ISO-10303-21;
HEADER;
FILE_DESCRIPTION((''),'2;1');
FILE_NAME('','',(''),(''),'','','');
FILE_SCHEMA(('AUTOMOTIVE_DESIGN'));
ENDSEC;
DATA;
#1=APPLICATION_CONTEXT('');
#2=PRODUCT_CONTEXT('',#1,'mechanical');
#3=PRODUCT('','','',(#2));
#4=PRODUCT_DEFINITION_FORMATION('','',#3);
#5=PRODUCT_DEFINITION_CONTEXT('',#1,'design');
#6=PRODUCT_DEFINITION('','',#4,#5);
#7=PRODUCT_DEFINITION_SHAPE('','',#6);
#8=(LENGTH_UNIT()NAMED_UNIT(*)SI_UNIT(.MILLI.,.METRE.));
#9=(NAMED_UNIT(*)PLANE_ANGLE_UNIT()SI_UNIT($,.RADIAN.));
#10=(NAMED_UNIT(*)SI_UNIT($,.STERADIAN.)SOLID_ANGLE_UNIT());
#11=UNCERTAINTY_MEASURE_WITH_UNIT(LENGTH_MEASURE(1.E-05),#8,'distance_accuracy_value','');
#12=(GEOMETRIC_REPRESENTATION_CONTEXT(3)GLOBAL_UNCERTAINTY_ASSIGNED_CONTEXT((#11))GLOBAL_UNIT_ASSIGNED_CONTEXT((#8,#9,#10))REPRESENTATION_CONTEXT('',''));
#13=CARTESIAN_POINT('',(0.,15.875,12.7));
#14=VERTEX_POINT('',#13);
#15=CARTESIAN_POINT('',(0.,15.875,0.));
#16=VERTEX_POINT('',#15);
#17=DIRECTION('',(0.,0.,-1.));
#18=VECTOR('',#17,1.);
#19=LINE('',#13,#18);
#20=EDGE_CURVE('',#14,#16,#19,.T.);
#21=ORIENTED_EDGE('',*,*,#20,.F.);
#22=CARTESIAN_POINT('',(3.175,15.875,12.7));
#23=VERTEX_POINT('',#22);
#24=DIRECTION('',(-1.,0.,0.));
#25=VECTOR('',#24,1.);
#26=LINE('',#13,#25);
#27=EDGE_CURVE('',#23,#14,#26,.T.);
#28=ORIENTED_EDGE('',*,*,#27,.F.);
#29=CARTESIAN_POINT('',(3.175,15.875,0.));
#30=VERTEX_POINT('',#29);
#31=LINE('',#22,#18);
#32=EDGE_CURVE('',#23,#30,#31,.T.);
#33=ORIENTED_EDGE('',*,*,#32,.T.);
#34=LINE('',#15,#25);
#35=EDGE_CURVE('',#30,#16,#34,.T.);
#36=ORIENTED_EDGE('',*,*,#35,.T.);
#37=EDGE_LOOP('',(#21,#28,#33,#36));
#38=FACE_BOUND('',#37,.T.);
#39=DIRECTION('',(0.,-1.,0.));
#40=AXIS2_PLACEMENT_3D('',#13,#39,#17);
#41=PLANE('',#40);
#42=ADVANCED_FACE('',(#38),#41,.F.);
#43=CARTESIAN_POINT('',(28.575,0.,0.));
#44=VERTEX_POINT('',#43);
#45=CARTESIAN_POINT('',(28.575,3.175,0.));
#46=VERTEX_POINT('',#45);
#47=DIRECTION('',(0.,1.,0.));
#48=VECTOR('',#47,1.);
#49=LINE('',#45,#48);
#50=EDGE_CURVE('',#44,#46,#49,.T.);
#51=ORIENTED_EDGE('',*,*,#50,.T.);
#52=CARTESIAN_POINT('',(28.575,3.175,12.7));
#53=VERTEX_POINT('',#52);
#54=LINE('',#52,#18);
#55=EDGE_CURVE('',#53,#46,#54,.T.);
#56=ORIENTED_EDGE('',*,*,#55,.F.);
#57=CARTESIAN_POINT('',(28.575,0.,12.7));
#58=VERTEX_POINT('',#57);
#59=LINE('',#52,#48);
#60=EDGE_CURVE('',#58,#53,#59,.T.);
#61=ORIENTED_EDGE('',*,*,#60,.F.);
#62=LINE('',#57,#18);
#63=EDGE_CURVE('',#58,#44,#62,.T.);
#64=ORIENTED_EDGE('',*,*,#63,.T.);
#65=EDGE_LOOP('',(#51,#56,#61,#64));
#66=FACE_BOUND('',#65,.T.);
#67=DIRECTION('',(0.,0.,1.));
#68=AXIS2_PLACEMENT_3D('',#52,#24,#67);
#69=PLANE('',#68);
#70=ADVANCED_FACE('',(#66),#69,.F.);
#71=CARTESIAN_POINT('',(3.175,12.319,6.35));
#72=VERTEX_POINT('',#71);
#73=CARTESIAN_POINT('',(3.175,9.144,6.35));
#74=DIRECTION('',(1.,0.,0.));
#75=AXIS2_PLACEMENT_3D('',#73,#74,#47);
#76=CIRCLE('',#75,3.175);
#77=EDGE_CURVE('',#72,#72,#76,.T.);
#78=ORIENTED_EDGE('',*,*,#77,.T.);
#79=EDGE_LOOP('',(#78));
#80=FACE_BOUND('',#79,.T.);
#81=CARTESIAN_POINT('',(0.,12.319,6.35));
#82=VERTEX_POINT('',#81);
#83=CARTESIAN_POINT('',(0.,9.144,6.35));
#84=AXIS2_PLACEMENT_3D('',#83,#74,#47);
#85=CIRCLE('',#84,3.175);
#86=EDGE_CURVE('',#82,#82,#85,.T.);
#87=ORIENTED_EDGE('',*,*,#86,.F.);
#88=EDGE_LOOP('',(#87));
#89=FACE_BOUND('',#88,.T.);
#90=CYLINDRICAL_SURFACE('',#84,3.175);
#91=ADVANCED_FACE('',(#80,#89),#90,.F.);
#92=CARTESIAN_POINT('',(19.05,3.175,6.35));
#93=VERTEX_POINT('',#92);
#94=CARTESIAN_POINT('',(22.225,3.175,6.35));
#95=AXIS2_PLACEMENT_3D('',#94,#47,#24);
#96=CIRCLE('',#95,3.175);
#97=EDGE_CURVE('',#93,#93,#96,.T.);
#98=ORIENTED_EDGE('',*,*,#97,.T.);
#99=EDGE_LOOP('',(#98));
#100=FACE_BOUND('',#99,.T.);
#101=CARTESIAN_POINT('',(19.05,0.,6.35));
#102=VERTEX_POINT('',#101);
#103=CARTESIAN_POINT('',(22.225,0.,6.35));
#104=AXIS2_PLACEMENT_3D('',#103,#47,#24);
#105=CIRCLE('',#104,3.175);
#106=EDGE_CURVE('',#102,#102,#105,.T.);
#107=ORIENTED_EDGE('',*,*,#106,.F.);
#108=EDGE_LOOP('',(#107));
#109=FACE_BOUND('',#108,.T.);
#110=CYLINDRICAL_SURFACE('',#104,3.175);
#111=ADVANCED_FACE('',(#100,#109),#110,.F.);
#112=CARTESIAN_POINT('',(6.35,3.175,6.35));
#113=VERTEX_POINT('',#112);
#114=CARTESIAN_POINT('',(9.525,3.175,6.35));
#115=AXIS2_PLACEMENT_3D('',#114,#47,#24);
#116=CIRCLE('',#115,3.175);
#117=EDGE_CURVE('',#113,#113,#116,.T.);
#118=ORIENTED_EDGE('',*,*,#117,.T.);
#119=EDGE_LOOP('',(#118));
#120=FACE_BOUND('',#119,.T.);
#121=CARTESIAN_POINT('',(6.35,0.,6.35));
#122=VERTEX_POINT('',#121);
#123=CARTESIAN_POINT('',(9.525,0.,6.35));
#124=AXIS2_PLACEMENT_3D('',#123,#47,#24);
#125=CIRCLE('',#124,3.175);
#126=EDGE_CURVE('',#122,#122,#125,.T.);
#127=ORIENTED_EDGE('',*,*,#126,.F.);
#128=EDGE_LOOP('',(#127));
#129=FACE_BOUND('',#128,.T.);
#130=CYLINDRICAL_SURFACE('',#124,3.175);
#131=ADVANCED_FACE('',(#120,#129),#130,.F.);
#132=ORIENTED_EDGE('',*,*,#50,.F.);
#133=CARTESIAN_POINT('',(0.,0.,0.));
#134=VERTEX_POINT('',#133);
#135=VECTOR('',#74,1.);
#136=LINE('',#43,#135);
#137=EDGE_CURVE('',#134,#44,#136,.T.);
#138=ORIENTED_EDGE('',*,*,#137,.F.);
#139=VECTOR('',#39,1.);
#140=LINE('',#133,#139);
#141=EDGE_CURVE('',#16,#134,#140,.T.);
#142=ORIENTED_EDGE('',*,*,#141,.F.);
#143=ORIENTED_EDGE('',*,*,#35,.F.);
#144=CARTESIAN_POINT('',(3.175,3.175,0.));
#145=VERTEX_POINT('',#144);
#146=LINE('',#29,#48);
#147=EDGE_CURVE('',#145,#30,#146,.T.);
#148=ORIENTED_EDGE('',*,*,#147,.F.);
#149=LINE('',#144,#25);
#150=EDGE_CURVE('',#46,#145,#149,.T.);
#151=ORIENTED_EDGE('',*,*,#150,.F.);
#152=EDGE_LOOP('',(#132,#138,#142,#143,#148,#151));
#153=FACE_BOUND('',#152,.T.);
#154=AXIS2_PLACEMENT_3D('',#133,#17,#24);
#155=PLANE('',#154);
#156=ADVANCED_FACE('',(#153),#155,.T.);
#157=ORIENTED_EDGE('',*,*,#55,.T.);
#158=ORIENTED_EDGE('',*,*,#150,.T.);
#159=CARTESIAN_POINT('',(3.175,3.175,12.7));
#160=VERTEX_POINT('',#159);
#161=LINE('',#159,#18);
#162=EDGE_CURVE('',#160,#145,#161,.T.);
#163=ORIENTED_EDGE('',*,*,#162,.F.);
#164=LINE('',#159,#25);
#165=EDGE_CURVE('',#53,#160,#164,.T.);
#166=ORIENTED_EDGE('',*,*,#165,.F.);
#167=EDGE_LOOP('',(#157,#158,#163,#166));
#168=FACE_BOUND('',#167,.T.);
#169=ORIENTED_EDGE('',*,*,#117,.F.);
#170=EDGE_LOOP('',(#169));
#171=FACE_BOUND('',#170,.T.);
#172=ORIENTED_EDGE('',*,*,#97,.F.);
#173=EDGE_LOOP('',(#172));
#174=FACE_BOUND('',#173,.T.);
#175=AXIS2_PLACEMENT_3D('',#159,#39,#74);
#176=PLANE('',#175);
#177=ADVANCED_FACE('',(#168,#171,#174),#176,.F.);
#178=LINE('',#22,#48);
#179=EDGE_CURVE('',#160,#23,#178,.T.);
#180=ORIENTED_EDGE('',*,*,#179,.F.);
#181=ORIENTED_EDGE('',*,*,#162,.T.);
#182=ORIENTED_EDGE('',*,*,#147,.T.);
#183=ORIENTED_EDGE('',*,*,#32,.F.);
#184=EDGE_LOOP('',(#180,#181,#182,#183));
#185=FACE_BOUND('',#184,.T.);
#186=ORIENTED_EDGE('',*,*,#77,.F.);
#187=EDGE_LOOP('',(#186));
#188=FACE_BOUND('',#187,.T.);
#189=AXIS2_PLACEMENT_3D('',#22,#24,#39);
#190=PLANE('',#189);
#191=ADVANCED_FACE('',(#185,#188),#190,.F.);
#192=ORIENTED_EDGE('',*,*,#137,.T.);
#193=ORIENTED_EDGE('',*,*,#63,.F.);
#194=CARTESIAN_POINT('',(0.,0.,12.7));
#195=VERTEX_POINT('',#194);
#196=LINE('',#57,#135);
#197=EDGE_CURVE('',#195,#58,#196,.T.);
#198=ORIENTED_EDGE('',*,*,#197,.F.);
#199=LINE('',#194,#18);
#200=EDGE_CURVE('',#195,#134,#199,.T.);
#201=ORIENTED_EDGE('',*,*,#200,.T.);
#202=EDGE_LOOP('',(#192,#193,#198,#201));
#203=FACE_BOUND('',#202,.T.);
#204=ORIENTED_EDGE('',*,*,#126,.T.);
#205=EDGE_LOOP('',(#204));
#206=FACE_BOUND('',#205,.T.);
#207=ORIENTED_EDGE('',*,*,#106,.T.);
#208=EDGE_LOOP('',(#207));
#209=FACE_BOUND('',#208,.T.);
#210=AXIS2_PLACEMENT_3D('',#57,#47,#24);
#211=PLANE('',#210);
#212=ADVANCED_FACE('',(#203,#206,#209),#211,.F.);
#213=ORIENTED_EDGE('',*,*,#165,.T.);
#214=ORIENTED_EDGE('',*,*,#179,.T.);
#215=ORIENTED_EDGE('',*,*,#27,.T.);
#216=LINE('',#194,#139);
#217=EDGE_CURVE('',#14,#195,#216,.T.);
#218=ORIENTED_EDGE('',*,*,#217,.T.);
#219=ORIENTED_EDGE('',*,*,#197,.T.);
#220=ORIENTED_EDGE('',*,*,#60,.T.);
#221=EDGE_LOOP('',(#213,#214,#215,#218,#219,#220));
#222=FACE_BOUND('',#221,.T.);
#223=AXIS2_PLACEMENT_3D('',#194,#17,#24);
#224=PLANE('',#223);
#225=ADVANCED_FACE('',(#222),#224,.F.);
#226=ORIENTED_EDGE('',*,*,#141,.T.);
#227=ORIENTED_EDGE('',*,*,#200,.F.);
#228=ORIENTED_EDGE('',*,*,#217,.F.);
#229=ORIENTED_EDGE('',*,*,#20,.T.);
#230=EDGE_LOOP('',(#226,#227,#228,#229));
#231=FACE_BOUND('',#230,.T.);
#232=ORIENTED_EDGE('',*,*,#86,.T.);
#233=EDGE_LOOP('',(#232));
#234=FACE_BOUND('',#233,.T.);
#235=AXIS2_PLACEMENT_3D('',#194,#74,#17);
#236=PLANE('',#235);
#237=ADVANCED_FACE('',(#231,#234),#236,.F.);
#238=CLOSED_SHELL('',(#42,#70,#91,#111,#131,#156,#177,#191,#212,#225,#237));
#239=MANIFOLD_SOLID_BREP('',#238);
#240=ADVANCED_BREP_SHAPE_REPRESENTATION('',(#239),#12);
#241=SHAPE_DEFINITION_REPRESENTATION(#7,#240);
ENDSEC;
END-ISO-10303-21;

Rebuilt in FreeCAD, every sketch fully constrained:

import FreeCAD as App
import Part
import Sketcher

V = App.Vector
Q = App.Units.Quantity

doc = App.newDocument("Part")
params = doc.addObject("Spreadsheet::Sheet", "Params")
for row, (alias, value) in enumerate([
    ("sketch1_width", "1 in"),
    ("sketch1_height", "0.5 in"),
    ("sketch1_width2", "1.125 in"),
    ("pad1_length", "0.5 in"),
    ("sketch2_diameter", "0.25 in"),
    ("sketch3_diameter", "0.25 in"),
], start=1):
    params.set(f"A{row}", alias)
    params.set(f"B{row}", "=" + value)
    params.setAlias(f"B{row}", alias)

body = doc.addObject("PartDesign::Body", "Body")

sketch1 = doc.addObject("Sketcher::SketchObject", "Sketch")
body.addObject(sketch1)
sketch1.AttachmentSupport = (doc.XY_Plane, [""])
sketch1.MapMode = "FlatFace"
sketch1.addGeometry([
    Part.LineSegment(V(0, 15.875, 0), V(0, 0, 0)),
    Part.LineSegment(V(0, 0, 0), V(28.575, 0, 0)),
    Part.LineSegment(V(28.575, 0, 0), V(28.575, 3.175, 0)),
    Part.LineSegment(V(28.575, 3.175, 0), V(3.175, 3.175, 0)),
    Part.LineSegment(V(3.175, 3.175, 0), V(3.175, 15.875, 0)),
    Part.LineSegment(V(3.175, 15.875, 0), V(0, 15.875, 0)),
], False)
sketch1.addConstraint([
    Sketcher.Constraint("Coincident", 0, 2, 1, 1),
    Sketcher.Constraint("Coincident", 1, 2, 2, 1),
    Sketcher.Constraint("Coincident", 2, 2, 3, 1),
    Sketcher.Constraint("Coincident", 3, 2, 4, 1),
    Sketcher.Constraint("Coincident", 4, 2, 5, 1),
    Sketcher.Constraint("Coincident", 5, 2, 0, 1),
    Sketcher.Constraint("Vertical", 0),
    Sketcher.Constraint("Horizontal", 1),
    Sketcher.Constraint("Vertical", 2),
    Sketcher.Constraint("Horizontal", 3),
    Sketcher.Constraint("Vertical", 4),
    Sketcher.Constraint("Horizontal", 5),
    Sketcher.Constraint("Coincident", 0, 2, -1, 1),
    Sketcher.Constraint("Equal", 5, 2),
    Sketcher.Constraint("DistanceX", 3, 2, 3, 1, Q("1 in")),
    Sketcher.Constraint("DistanceY", 4, 1, 4, 2, Q("0.5 in")),
    Sketcher.Constraint("DistanceX", 1, 1, 1, 2, Q("1.125 in")),
])
sketch1.setExpression("Constraints[14]", "Params.sketch1_width")
sketch1.setExpression("Constraints[15]", "Params.sketch1_height")
sketch1.setExpression("Constraints[16]", "Params.sketch1_width2")
pad1 = doc.addObject("PartDesign::Pad", "Pad")
body.addObject(pad1)
pad1.Profile = sketch1
pad1.setExpression("Length", "Params.pad1_length")

sketch2 = doc.addObject("Sketcher::SketchObject", "Sketch001")
body.addObject(sketch2)
sketch2.AttachmentSupport = (doc.XZ_Plane, [""])
sketch2.MapMode = "FlatFace"
sketch2.AttachmentOffset = App.Placement(V(0, 0, -0.125 * 25.4), App.Rotation())
sketch2.addGeometry([
    Part.Circle(V(9.525, 6.35, 0), V(0, 0, 1), 3.175),
    Part.Circle(V(22.225, 6.35, 0), V(0, 0, 1), 3.175),
], False)
sketch2.addConstraint([
    Sketcher.Constraint("Equal", 0, 1),
    Sketcher.Constraint("Horizontal", 0, 3, 1, 3),
    Sketcher.Constraint("Diameter", 0, Q("0.25 in")),
    Sketcher.Constraint("DistanceX", 0, 3, 1, 3, Q("0.5 in")),
    Sketcher.Constraint("DistanceY", -1, 1, 0, 3, Q("0.25 in")),
    Sketcher.Constraint("DistanceX", -1, 1, 0, 3, Q("0.375 in")),
])
sketch2.setExpression("Constraints[2]", "Params.sketch2_diameter")
pocket1 = doc.addObject("PartDesign::Pocket", "Pocket")
body.addObject(pocket1)
pocket1.Profile = sketch2
pocket1.Type = "ThroughAll"
pocket1.Reversed = True

sketch3 = doc.addObject("Sketcher::SketchObject", "Sketch002")
body.addObject(sketch3)
sketch3.AttachmentSupport = (doc.YZ_Plane, [""])
sketch3.MapMode = "FlatFace"
sketch3.AttachmentOffset = App.Placement(V(0, 0, 0.125 * 25.4), App.Rotation())
sketch3.addGeometry(Part.Circle(V(9.144, 6.35, 0), V(0, 0, 1), 3.175), False)
sketch3.addConstraint([
    Sketcher.Constraint("Diameter", 0, Q("0.25 in")),
    Sketcher.Constraint("DistanceX", -1, 1, 0, 3, Q("0.36 in")),
    Sketcher.Constraint("DistanceY", -1, 1, 0, 3, Q("0.25 in")),
])
sketch3.setExpression("Constraints[0]", "Params.sketch3_diameter")
pocket2 = doc.addObject("PartDesign::Pocket", "Pocket001")
body.addObject(pocket2)
pocket2.Profile = sketch3
pocket2.Type = "ThroughAll"

doc.recompute()
